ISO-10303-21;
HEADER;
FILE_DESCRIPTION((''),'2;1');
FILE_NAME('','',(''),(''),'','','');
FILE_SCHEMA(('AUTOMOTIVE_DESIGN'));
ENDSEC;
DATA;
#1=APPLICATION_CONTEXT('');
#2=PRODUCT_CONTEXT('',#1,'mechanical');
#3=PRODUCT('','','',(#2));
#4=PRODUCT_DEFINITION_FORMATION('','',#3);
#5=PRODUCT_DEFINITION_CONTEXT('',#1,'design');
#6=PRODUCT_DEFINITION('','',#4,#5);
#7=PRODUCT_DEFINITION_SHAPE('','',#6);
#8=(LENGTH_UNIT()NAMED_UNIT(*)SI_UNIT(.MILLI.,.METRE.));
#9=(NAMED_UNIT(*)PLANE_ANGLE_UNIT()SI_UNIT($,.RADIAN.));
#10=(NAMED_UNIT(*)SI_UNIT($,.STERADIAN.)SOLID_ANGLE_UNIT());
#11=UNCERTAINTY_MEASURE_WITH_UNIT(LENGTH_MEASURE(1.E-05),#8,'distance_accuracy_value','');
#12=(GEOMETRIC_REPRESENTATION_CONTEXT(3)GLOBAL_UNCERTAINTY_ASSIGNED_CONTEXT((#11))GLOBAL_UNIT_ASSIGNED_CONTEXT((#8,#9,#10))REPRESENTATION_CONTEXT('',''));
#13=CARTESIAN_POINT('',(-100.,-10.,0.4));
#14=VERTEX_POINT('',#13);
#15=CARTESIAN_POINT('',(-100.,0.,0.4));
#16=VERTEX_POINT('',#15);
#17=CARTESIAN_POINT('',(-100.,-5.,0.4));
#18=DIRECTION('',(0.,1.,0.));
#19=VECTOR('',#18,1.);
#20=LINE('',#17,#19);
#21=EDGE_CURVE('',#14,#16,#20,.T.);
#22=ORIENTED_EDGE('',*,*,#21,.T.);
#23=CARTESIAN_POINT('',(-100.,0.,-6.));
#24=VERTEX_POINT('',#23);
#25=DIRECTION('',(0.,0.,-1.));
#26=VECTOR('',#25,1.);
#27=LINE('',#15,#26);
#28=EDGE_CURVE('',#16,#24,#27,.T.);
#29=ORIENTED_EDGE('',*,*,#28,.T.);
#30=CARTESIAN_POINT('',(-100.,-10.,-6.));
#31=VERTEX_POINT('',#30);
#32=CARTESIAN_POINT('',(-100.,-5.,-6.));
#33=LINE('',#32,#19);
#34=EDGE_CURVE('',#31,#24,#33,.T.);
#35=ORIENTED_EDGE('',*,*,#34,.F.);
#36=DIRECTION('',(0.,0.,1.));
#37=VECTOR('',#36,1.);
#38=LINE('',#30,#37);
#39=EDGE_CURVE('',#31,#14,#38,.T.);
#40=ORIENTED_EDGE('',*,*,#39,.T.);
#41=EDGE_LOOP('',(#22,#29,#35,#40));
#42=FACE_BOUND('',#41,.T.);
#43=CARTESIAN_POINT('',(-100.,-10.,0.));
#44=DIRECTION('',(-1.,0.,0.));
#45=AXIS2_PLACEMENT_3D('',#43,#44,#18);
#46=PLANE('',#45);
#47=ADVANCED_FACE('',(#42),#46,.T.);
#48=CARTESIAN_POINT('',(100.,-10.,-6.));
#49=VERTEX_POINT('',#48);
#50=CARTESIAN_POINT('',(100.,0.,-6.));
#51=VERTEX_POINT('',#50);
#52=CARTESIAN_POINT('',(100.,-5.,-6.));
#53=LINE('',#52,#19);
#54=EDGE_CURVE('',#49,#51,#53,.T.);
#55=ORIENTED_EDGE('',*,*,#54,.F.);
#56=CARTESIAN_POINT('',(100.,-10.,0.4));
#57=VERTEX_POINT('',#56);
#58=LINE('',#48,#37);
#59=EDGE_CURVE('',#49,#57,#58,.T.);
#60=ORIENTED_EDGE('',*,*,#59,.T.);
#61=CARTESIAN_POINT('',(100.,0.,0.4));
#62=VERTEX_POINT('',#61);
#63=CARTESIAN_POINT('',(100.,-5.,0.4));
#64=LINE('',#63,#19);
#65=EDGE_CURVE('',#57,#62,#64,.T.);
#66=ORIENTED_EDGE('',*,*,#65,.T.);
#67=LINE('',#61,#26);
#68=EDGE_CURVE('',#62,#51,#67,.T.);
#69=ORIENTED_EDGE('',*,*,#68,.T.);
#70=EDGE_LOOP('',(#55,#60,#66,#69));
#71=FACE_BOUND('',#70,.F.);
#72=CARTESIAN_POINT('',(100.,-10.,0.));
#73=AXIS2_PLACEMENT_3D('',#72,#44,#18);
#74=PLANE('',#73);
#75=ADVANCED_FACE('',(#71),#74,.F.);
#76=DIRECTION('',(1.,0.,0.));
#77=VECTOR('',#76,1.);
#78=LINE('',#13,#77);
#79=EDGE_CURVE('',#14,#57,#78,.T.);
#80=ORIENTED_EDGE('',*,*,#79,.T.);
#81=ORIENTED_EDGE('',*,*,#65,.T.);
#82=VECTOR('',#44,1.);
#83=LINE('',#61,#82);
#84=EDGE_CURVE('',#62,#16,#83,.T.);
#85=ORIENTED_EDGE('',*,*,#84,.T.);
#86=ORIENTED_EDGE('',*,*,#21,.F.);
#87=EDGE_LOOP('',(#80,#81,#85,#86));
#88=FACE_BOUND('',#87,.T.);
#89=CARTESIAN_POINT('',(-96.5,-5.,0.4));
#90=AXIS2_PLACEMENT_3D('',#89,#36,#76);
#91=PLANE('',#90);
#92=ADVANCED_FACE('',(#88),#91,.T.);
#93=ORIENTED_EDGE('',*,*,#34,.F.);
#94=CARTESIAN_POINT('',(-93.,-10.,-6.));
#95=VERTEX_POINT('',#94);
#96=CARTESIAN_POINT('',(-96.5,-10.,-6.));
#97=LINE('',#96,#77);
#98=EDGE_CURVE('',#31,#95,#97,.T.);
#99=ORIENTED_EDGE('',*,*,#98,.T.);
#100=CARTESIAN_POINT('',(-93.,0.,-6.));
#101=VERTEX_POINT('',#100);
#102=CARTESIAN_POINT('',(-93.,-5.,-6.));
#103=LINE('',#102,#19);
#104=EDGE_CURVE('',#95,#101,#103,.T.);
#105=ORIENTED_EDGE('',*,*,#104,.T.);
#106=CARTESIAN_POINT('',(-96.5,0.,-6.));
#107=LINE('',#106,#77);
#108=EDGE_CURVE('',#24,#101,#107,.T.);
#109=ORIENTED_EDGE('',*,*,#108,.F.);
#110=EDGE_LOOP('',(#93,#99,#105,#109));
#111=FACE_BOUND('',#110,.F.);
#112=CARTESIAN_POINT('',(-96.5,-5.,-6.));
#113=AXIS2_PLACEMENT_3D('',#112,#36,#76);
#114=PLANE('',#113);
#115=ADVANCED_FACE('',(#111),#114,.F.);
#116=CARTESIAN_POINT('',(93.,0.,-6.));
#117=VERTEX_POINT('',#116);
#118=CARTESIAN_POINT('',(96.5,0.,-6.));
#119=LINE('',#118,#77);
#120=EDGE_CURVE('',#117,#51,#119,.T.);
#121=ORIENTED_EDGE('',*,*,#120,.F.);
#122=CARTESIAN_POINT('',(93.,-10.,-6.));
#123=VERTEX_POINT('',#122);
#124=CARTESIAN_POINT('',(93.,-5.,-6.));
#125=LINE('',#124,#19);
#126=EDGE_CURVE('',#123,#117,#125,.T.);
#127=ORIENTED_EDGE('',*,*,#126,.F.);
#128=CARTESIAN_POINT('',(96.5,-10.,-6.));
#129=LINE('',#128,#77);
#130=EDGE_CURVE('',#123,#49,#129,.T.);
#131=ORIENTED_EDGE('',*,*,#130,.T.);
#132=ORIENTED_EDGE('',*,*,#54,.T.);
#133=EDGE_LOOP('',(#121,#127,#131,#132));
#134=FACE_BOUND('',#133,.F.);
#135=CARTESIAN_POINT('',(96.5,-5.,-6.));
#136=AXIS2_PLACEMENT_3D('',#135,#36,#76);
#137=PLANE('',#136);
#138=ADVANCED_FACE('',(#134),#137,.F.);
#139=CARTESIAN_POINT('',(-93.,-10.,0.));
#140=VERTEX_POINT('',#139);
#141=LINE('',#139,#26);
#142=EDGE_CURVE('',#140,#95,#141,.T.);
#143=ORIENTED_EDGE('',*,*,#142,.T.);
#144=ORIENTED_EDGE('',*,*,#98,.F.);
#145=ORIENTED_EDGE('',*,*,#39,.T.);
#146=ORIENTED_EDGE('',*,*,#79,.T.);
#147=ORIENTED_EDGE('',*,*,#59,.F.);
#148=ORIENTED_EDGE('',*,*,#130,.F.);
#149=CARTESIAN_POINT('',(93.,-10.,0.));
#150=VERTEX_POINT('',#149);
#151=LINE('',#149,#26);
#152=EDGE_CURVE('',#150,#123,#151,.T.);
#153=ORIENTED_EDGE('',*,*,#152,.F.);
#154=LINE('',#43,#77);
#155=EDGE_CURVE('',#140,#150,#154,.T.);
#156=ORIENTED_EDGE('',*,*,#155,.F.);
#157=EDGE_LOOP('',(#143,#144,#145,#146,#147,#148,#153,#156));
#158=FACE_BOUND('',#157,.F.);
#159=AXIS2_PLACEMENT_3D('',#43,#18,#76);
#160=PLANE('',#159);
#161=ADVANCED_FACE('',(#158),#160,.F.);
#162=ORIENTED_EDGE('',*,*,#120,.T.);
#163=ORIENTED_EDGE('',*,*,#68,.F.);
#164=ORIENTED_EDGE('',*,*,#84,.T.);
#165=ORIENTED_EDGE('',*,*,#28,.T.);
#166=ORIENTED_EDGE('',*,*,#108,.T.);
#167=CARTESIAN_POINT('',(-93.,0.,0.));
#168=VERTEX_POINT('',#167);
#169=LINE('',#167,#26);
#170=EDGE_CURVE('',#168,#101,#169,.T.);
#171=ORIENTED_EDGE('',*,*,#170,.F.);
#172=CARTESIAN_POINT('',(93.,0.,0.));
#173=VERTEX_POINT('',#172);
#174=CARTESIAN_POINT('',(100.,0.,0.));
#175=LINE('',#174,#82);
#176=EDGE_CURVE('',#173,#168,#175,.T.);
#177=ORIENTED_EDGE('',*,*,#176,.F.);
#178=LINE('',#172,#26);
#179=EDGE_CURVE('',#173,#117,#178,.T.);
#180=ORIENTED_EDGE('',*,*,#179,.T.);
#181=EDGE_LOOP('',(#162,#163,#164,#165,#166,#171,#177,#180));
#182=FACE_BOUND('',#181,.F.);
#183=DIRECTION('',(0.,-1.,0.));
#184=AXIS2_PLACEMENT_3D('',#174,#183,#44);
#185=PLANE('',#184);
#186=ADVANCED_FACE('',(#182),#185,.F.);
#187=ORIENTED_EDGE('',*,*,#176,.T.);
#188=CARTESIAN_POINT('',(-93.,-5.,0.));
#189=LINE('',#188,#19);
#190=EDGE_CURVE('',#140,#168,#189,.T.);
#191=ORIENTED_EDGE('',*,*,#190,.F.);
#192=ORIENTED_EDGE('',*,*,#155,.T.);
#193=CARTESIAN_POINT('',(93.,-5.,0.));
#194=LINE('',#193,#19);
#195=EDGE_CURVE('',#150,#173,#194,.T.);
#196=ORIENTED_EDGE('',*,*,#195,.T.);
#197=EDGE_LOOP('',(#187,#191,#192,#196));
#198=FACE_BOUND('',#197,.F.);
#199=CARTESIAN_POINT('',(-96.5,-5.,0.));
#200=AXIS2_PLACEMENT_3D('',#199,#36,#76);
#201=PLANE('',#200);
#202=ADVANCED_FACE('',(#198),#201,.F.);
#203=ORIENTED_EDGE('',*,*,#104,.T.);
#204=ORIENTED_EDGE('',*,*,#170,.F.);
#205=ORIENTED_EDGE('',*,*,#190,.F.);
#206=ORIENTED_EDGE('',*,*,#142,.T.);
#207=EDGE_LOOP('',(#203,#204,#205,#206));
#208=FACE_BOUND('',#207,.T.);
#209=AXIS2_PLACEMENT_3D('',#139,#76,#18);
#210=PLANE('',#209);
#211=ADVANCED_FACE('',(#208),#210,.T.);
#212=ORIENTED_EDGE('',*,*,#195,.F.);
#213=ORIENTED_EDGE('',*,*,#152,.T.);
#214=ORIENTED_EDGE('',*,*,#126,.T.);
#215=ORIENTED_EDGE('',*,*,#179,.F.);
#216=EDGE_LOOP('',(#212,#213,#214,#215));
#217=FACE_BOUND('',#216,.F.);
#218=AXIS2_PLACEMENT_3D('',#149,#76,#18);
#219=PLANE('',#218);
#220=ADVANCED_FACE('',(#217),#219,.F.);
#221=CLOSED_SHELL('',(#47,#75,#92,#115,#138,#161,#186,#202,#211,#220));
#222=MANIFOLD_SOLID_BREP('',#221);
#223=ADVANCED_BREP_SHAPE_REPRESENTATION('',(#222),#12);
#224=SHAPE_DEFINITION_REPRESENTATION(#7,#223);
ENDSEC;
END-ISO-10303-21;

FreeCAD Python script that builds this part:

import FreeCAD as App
import Part
import Sketcher
from FreeCAD import Vector
Q = App.Units.Quantity

doc = App.newDocument("Part")
params = doc.addObject("Spreadsheet::Sheet", "Params")
for row, (alias, value) in enumerate([
    ("sketch1_width", "7 mm"),
    ("sketch1_height", "10 mm"),
    ("pad1_length", "6 mm"),
    ("sketch2_width", "7 mm"),
    ("sketch2_height", "10 mm"),
    ("pad2_length", "6 mm"),
    ("sketch3_width", "200 mm"),
    ("sketch3_height", "10 mm"),
    ("pad3_length", "0.4 mm"),
], start=1):
    params.set(f"A{row}", alias)
    params.set(f"B{row}", "=" + value)
    params.setAlias(f"B{row}", alias)

body = doc.addObject("PartDesign::Body", "Body")

sketch1 = doc.addObject("Sketcher::SketchObject", "Sketch")
body.addObject(sketch1)
sketch1.AttachmentSupport = (doc.XY_Plane, [""])
sketch1.MapMode = "FlatFace"
sketch1.addGeometry(Part.LineSegment(Vector(-100, 0, 0), Vector(-100, -10, 0)), False)
sketch1.addGeometry(Part.LineSegment(Vector(-100, -10, 0), Vector(-93, -10, 0)), False)
sketch1.addGeometry(Part.LineSegment(Vector(-93, -10, 0), Vector(-93, 0, 0)), False)
sketch1.addGeometry(Part.LineSegment(Vector(-93, 0, 0), Vector(-100, 0, 0)), False)
sketch1.addConstraint(Sketcher.Constraint("Coincident", 0, 2, 1, 1))
sketch1.addConstraint(Sketcher.Constraint("Coincident", 1, 2, 2, 1))
sketch1.addConstraint(Sketcher.Constraint("Coincident", 2, 2, 3, 1))
sketch1.addConstraint(Sketcher.Constraint("Coincident", 3, 2, 0, 1))
sketch1.addConstraint(Sketcher.Constraint("Vertical", 0))
sketch1.addConstraint(Sketcher.Constraint("Horizontal", 1))
sketch1.addConstraint(Sketcher.Constraint("Vertical", 2))
sketch1.addConstraint(Sketcher.Constraint("Horizontal", 3))
sketch1.addConstraint(Sketcher.Constraint("PointOnObject", 2, 2, -1))
sketch1.addConstraint(Sketcher.Constraint("DistanceX", 1, 1, 1, 2, Q("7 mm")))
sketch1.addConstraint(Sketcher.Constraint("DistanceY", 0, 2, 0, 1, Q("10 mm")))
sketch1.addConstraint(Sketcher.Constraint("DistanceX", 0, 2, -1, 1, Q("100 mm")))
sketch1.setExpression("Constraints[9]", "Params.sketch1_width")
sketch1.setExpression("Constraints[10]", "Params.sketch1_height")
pad1 = doc.addObject("PartDesign::Pad", "Pad")
body.addObject(pad1)
pad1.Profile = sketch1
pad1.setExpression("Length", "Params.pad1_length")
pad1.Reversed = True
body2 = doc.addObject("PartDesign::Body", "Body001")

sketch2 = doc.addObject("Sketcher::SketchObject", "Sketch001")
body2.addObject(sketch2)
sketch2.AttachmentSupport = (doc.getObject("XY_Plane001"), [""])
sketch2.MapMode = "FlatFace"
sketch2.addGeometry(Part.LineSegment(Vector(93, 0, 0), Vector(93, -10, 0)), False)
sketch2.addGeometry(Part.LineSegment(Vector(93, -10, 0), Vector(100, -10, 0)), False)
sketch2.addGeometry(Part.LineSegment(Vector(100, -10, 0), Vector(100, 0, 0)), False)
sketch2.addGeometry(Part.LineSegment(Vector(100, 0, 0), Vector(93, 0, 0)), False)
sketch2.addConstraint(Sketcher.Constraint("Coincident", 0, 2, 1, 1))
sketch2.addConstraint(Sketcher.Constraint("Coincident", 1, 2, 2, 1))
sketch2.addConstraint(Sketcher.Constraint("Coincident", 2, 2, 3, 1))
sketch2.addConstraint(Sketcher.Constraint("Coincident", 3, 2, 0, 1))
sketch2.addConstraint(Sketcher.Constraint("Vertical", 0))
sketch2.addConstraint(Sketcher.Constraint("Horizontal", 1))
sketch2.addConstraint(Sketcher.Constraint("Vertical", 2))
sketch2.addConstraint(Sketcher.Constraint("Horizontal", 3))
sketch2.addConstraint(Sketcher.Constraint("PointOnObject", 2, 2, -1))
sketch2.addConstraint(Sketcher.Constraint("DistanceX", 1, 1, 1, 2, Q("7 mm")))
sketch2.addConstraint(Sketcher.Constraint("DistanceY", 0, 2, 0, 1, Q("10 mm")))
sketch2.addConstraint(Sketcher.Constraint("DistanceX", -1, 1, 0, 2, Q("93 mm")))
sketch2.setExpression("Constraints[9]", "Params.sketch2_width")
sketch2.setExpression("Constraints[10]", "Params.sketch2_height")
pad2 = doc.addObject("PartDesign::Pad", "Pad001")
body2.addObject(pad2)
pad2.Profile = sketch2
pad2.setExpression("Length", "Params.pad2_length")
pad2.Reversed = True
body.AllowCompound = True
doc.recompute()

boolean = doc.addObject("PartDesign::Boolean", "Boolean")
body.addObject(boolean)
boolean.Type = "Fuse"
boolean.addObjects([body2])

sketch3 = doc.addObject("Sketcher::SketchObject", "Sketch002")
body.addObject(sketch3)
sketch3.AttachmentSupport = (doc.XY_Plane, [""])
sketch3.MapMode = "FlatFace"
sketch3.addGeometry(Part.LineSegment(Vector(-100, 0, 0), Vector(-100, -10, 0)), False)
sketch3.addGeometry(Part.LineSegment(Vector(-100, -10, 0), Vector(100, -10, 0)), False)
sketch3.addGeometry(Part.LineSegment(Vector(100, -10, 0), Vector(100, 0, 0)), False)
sketch3.addGeometry(Part.LineSegment(Vector(100, 0, 0), Vector(-100, 0, 0)), False)
sketch3.addConstraint(Sketcher.Constraint("Coincident", 0, 2, 1, 1))
sketch3.addConstraint(Sketcher.Constraint("Coincident", 1, 2, 2, 1))
sketch3.addConstraint(Sketcher.Constraint("Coincident", 2, 2, 3, 1))
sketch3.addConstraint(Sketcher.Constraint("Coincident", 3, 2, 0, 1))
sketch3.addConstraint(Sketcher.Constraint("Vertical", 0))
sketch3.addConstraint(Sketcher.Constraint("Horizontal", 1))
sketch3.addConstraint(Sketcher.Constraint("Vertical", 2))
sketch3.addConstraint(Sketcher.Constraint("Horizontal", 3))
sketch3.addConstraint(Sketcher.Constraint("Symmetric", 2, 2, 3, 2, -1, 1))
sketch3.addConstraint(Sketcher.Constraint("DistanceX", 1, 1, 1, 2, Q("200 mm")))
sketch3.addConstraint(Sketcher.Constraint("DistanceY", 0, 2, 0, 1, Q("10 mm")))
sketch3.setExpression("Constraints[9]", "Params.sketch3_width")
sketch3.setExpression("Constraints[10]", "Params.sketch3_height")
pad3 = doc.addObject("PartDesign::Pad", "Pad002")
body.addObject(pad3)
pad3.Profile = sketch3
pad3.setExpression("Length", "Params.pad3_length")

doc.recompute()
